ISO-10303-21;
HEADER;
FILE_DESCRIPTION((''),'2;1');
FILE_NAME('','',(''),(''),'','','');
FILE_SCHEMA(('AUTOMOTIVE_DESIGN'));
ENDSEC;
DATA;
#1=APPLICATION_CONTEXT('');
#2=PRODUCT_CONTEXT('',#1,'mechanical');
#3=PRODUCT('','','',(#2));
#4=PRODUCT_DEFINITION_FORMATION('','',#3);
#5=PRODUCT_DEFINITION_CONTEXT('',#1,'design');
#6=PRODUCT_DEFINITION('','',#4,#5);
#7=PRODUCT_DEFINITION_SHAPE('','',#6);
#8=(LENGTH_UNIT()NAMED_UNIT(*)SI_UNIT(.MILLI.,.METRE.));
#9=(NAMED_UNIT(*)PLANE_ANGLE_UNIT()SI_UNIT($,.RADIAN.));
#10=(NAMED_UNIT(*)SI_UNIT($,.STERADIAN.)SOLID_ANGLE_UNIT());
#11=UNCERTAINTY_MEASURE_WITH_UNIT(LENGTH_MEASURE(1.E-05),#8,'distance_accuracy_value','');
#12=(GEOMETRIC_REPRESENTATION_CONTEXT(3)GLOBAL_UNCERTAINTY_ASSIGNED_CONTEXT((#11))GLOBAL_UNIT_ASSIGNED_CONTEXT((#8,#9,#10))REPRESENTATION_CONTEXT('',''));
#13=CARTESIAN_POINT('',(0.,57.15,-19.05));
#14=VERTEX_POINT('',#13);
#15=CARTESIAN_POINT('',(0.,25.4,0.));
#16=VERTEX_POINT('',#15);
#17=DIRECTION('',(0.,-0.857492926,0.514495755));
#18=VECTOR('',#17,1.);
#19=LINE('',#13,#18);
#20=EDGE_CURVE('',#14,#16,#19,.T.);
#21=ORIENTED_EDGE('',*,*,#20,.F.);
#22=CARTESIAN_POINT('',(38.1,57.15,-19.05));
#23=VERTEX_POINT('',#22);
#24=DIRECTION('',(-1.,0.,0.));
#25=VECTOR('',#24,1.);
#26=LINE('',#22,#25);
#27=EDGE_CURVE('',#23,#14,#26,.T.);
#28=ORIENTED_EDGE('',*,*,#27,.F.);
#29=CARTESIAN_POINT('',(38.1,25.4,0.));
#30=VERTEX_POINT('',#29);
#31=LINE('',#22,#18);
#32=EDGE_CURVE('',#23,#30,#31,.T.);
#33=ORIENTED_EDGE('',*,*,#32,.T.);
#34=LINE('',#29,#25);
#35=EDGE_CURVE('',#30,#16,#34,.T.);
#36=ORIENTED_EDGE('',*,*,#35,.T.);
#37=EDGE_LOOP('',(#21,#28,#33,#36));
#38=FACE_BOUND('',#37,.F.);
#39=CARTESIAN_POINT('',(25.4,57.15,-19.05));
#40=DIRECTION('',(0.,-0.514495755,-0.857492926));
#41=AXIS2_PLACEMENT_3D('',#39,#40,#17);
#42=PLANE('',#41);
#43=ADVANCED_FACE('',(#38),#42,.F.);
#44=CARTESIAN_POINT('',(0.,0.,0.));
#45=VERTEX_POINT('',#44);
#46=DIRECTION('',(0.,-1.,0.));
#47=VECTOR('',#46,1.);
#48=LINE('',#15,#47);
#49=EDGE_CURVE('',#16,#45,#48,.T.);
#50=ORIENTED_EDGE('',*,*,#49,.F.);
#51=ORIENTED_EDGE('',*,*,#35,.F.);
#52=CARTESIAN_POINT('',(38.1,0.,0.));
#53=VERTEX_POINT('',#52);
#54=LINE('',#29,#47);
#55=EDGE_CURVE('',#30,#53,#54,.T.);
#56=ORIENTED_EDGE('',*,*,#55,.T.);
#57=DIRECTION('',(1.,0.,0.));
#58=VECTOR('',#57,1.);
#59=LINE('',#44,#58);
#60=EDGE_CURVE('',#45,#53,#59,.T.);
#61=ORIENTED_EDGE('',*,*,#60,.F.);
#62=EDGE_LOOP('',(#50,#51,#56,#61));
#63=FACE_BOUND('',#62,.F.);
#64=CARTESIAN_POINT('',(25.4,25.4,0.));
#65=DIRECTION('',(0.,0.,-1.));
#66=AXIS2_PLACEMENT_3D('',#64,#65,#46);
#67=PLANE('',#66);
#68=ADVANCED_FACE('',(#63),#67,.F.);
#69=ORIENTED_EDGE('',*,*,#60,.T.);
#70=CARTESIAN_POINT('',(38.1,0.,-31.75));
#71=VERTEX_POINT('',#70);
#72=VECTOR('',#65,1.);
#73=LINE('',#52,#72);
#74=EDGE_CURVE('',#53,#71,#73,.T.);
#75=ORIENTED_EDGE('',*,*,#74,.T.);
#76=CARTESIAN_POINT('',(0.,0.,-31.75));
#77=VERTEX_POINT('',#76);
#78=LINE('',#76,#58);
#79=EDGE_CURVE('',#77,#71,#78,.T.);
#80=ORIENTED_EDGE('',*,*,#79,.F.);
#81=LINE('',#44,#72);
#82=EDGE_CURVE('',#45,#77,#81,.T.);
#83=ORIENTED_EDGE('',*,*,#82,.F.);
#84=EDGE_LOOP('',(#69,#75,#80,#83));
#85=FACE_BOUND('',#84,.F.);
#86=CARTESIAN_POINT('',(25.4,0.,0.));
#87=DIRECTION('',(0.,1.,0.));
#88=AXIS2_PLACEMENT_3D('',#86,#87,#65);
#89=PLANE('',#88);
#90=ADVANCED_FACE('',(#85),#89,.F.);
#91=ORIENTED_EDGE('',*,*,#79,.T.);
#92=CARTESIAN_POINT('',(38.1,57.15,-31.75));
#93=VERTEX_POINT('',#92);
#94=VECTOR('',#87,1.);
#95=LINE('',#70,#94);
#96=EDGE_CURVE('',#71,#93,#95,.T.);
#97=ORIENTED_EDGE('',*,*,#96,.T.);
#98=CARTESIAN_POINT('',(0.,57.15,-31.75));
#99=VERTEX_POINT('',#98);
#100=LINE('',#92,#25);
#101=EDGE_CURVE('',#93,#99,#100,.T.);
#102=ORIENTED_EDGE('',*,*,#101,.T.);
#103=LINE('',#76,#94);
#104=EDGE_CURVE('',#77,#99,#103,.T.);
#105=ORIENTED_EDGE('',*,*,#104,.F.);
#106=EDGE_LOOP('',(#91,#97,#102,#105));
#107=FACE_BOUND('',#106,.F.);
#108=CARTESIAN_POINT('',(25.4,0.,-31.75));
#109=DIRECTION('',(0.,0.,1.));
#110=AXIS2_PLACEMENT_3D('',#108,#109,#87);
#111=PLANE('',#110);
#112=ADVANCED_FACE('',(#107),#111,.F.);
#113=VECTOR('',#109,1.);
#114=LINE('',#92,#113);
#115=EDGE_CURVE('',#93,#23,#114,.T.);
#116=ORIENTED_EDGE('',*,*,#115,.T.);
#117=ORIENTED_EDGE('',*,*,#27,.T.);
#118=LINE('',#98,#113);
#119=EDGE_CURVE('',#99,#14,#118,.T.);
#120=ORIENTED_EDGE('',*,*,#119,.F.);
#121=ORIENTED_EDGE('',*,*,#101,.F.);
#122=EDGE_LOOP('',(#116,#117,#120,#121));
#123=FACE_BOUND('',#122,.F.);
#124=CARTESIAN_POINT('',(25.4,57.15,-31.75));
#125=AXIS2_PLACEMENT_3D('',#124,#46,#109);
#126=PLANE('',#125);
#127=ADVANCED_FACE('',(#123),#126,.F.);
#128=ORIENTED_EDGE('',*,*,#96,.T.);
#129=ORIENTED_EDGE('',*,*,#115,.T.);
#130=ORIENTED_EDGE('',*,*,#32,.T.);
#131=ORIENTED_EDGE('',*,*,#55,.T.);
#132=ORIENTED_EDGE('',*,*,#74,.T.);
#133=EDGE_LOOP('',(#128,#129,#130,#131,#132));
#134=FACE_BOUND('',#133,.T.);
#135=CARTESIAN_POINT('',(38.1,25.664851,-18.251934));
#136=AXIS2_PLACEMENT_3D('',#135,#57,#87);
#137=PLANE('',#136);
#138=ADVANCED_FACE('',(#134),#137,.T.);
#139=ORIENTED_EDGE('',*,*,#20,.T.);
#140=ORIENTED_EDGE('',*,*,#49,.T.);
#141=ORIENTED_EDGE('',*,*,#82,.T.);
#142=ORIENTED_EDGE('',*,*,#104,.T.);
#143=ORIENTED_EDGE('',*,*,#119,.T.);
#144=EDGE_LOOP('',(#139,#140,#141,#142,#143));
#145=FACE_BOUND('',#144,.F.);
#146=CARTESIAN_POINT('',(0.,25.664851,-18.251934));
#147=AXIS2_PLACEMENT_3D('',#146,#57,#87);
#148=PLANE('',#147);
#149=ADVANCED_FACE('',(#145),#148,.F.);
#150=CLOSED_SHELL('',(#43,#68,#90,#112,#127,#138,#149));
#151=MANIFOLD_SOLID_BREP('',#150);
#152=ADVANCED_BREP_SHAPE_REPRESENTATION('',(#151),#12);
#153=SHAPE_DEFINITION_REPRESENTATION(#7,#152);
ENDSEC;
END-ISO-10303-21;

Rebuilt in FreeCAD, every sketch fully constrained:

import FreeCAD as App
import Part
import Sketcher

V = App.Vector
Q = App.Units.Quantity


def add_polygon(sketch, points):
    """Adds a closed chain of lines whose ends are joined by coincident constraints."""
    first, n = sketch.GeometryCount, len(points)
    for a, b in zip(points, points[1:] + points[:1]):
        sketch.addGeometry(Part.LineSegment(App.Vector(*a, 0), App.Vector(*b, 0)), False)
    for i in range(n):
        sketch.addConstraint(Sketcher.Constraint("Coincident", first + i, 2, first + (i + 1) % n, 1))

doc = App.newDocument("Part")
params = doc.addObject("Spreadsheet::Sheet", "Params")
for row, (alias, value) in enumerate([
    ("sketch1_width", "1 in"),
    ("sketch1_height", "0.5 in"),
    ("sketch1_width2", "2.25 in"),
    ("sketch1_height2", "1.25 in"),
    ("pad1_length", "1 in"),
    ("sketch2_width", "1 in"),
    ("sketch2_height", "0.5 in"),
    ("sketch2_width2", "2.25 in"),
    ("sketch2_height2", "1.25 in"),
    ("pad2_length", "0.5 in"),
], start=1):
    params.set(f"A{row}", alias)
    params.set(f"B{row}", "=" + value)
    params.setAlias(f"B{row}", alias)

body = doc.addObject("PartDesign::Body", "Body")

sketch1 = body.newObject("Sketcher::SketchObject", "Sketch")
sketch1.AttachmentSupport = (doc.getObject("YZ_Plane"), [""])
sketch1.MapMode = "FlatFace"
add_polygon(sketch1, [(25, 0), (0, 0), (0, -32), (57, -32), (57, -19)])
sketch1.addConstraint(Sketcher.Constraint("Horizontal", 0))
sketch1.addConstraint(Sketcher.Constraint("Vertical", 1))
sketch1.addConstraint(Sketcher.Constraint("Horizontal", 2))
sketch1.addConstraint(Sketcher.Constraint("Vertical", 3))
sketch1.addConstraint(Sketcher.Constraint("Coincident", 0, 2, -1, 1))
sketch1.addConstraint(Sketcher.Constraint("DistanceX", 0, 2, 0, 1, Q("1 in")))
sketch1.addConstraint(Sketcher.Constraint("DistanceY", 3, 1, 3, 2, Q("0.5 in")))
sketch1.addConstraint(Sketcher.Constraint("DistanceX", 2, 1, 2, 2, Q("2.25 in")))
sketch1.addConstraint(Sketcher.Constraint("DistanceY", 1, 2, 1, 1, Q("1.25 in")))
sketch1.setExpression("Constraints[10]", "Params.sketch1_width")
sketch1.setExpression("Constraints[11]", "Params.sketch1_height")
sketch1.setExpression("Constraints[12]", "Params.sketch1_width2")
sketch1.setExpression("Constraints[13]", "Params.sketch1_height2")
pad1 = body.newObject("PartDesign::Pad", "Pad")
pad1.Profile = sketch1
pad1.setExpression("Length", "Params.pad1_length")

sketch2 = body.newObject("Sketcher::SketchObject", "Sketch001")
sketch2.AttachmentSupport = (doc.getObject("YZ_Plane"), [""])
sketch2.MapMode = "FlatFace"
sketch2.AttachmentOffset = App.Placement(V(0, 0, 1 * 25.4), App.Rotation())
add_polygon(sketch2, [(25, 0), (0, 0), (0, -32), (57, -32), (57, -19)])
sketch2.addConstraint(Sketcher.Constraint("Horizontal", 0))
sketch2.addConstraint(Sketcher.Constraint("Vertical", 1))
sketch2.addConstraint(Sketcher.Constraint("Horizontal", 2))
sketch2.addConstraint(Sketcher.Constraint("Vertical", 3))
sketch2.addConstraint(Sketcher.Constraint("Coincident", 0, 2, -1, 1))
sketch2.addConstraint(Sketcher.Constraint("DistanceX", 0, 2, 0, 1, Q("1 in")))
sketch2.addConstraint(Sketcher.Constraint("DistanceY", 3, 1, 3, 2, Q("0.5 in")))
sketch2.addConstraint(Sketcher.Constraint("DistanceX", 2, 1, 2, 2, Q("2.25 in")))
sketch2.addConstraint(Sketcher.Constraint("DistanceY", 1, 2, 1, 1, Q("1.25 in")))
sketch2.setExpression("Constraints[10]", "Params.sketch2_width")
sketch2.setExpression("Constraints[11]", "Params.sketch2_height")
sketch2.setExpression("Constraints[12]", "Params.sketch2_width2")
sketch2.setExpression("Constraints[13]", "Params.sketch2_height2")
pad2 = body.newObject("PartDesign::Pad", "Pad001")
pad2.Profile = sketch2
pad2.setExpression("Length", "Params.pad2_length")

doc.recompute()
